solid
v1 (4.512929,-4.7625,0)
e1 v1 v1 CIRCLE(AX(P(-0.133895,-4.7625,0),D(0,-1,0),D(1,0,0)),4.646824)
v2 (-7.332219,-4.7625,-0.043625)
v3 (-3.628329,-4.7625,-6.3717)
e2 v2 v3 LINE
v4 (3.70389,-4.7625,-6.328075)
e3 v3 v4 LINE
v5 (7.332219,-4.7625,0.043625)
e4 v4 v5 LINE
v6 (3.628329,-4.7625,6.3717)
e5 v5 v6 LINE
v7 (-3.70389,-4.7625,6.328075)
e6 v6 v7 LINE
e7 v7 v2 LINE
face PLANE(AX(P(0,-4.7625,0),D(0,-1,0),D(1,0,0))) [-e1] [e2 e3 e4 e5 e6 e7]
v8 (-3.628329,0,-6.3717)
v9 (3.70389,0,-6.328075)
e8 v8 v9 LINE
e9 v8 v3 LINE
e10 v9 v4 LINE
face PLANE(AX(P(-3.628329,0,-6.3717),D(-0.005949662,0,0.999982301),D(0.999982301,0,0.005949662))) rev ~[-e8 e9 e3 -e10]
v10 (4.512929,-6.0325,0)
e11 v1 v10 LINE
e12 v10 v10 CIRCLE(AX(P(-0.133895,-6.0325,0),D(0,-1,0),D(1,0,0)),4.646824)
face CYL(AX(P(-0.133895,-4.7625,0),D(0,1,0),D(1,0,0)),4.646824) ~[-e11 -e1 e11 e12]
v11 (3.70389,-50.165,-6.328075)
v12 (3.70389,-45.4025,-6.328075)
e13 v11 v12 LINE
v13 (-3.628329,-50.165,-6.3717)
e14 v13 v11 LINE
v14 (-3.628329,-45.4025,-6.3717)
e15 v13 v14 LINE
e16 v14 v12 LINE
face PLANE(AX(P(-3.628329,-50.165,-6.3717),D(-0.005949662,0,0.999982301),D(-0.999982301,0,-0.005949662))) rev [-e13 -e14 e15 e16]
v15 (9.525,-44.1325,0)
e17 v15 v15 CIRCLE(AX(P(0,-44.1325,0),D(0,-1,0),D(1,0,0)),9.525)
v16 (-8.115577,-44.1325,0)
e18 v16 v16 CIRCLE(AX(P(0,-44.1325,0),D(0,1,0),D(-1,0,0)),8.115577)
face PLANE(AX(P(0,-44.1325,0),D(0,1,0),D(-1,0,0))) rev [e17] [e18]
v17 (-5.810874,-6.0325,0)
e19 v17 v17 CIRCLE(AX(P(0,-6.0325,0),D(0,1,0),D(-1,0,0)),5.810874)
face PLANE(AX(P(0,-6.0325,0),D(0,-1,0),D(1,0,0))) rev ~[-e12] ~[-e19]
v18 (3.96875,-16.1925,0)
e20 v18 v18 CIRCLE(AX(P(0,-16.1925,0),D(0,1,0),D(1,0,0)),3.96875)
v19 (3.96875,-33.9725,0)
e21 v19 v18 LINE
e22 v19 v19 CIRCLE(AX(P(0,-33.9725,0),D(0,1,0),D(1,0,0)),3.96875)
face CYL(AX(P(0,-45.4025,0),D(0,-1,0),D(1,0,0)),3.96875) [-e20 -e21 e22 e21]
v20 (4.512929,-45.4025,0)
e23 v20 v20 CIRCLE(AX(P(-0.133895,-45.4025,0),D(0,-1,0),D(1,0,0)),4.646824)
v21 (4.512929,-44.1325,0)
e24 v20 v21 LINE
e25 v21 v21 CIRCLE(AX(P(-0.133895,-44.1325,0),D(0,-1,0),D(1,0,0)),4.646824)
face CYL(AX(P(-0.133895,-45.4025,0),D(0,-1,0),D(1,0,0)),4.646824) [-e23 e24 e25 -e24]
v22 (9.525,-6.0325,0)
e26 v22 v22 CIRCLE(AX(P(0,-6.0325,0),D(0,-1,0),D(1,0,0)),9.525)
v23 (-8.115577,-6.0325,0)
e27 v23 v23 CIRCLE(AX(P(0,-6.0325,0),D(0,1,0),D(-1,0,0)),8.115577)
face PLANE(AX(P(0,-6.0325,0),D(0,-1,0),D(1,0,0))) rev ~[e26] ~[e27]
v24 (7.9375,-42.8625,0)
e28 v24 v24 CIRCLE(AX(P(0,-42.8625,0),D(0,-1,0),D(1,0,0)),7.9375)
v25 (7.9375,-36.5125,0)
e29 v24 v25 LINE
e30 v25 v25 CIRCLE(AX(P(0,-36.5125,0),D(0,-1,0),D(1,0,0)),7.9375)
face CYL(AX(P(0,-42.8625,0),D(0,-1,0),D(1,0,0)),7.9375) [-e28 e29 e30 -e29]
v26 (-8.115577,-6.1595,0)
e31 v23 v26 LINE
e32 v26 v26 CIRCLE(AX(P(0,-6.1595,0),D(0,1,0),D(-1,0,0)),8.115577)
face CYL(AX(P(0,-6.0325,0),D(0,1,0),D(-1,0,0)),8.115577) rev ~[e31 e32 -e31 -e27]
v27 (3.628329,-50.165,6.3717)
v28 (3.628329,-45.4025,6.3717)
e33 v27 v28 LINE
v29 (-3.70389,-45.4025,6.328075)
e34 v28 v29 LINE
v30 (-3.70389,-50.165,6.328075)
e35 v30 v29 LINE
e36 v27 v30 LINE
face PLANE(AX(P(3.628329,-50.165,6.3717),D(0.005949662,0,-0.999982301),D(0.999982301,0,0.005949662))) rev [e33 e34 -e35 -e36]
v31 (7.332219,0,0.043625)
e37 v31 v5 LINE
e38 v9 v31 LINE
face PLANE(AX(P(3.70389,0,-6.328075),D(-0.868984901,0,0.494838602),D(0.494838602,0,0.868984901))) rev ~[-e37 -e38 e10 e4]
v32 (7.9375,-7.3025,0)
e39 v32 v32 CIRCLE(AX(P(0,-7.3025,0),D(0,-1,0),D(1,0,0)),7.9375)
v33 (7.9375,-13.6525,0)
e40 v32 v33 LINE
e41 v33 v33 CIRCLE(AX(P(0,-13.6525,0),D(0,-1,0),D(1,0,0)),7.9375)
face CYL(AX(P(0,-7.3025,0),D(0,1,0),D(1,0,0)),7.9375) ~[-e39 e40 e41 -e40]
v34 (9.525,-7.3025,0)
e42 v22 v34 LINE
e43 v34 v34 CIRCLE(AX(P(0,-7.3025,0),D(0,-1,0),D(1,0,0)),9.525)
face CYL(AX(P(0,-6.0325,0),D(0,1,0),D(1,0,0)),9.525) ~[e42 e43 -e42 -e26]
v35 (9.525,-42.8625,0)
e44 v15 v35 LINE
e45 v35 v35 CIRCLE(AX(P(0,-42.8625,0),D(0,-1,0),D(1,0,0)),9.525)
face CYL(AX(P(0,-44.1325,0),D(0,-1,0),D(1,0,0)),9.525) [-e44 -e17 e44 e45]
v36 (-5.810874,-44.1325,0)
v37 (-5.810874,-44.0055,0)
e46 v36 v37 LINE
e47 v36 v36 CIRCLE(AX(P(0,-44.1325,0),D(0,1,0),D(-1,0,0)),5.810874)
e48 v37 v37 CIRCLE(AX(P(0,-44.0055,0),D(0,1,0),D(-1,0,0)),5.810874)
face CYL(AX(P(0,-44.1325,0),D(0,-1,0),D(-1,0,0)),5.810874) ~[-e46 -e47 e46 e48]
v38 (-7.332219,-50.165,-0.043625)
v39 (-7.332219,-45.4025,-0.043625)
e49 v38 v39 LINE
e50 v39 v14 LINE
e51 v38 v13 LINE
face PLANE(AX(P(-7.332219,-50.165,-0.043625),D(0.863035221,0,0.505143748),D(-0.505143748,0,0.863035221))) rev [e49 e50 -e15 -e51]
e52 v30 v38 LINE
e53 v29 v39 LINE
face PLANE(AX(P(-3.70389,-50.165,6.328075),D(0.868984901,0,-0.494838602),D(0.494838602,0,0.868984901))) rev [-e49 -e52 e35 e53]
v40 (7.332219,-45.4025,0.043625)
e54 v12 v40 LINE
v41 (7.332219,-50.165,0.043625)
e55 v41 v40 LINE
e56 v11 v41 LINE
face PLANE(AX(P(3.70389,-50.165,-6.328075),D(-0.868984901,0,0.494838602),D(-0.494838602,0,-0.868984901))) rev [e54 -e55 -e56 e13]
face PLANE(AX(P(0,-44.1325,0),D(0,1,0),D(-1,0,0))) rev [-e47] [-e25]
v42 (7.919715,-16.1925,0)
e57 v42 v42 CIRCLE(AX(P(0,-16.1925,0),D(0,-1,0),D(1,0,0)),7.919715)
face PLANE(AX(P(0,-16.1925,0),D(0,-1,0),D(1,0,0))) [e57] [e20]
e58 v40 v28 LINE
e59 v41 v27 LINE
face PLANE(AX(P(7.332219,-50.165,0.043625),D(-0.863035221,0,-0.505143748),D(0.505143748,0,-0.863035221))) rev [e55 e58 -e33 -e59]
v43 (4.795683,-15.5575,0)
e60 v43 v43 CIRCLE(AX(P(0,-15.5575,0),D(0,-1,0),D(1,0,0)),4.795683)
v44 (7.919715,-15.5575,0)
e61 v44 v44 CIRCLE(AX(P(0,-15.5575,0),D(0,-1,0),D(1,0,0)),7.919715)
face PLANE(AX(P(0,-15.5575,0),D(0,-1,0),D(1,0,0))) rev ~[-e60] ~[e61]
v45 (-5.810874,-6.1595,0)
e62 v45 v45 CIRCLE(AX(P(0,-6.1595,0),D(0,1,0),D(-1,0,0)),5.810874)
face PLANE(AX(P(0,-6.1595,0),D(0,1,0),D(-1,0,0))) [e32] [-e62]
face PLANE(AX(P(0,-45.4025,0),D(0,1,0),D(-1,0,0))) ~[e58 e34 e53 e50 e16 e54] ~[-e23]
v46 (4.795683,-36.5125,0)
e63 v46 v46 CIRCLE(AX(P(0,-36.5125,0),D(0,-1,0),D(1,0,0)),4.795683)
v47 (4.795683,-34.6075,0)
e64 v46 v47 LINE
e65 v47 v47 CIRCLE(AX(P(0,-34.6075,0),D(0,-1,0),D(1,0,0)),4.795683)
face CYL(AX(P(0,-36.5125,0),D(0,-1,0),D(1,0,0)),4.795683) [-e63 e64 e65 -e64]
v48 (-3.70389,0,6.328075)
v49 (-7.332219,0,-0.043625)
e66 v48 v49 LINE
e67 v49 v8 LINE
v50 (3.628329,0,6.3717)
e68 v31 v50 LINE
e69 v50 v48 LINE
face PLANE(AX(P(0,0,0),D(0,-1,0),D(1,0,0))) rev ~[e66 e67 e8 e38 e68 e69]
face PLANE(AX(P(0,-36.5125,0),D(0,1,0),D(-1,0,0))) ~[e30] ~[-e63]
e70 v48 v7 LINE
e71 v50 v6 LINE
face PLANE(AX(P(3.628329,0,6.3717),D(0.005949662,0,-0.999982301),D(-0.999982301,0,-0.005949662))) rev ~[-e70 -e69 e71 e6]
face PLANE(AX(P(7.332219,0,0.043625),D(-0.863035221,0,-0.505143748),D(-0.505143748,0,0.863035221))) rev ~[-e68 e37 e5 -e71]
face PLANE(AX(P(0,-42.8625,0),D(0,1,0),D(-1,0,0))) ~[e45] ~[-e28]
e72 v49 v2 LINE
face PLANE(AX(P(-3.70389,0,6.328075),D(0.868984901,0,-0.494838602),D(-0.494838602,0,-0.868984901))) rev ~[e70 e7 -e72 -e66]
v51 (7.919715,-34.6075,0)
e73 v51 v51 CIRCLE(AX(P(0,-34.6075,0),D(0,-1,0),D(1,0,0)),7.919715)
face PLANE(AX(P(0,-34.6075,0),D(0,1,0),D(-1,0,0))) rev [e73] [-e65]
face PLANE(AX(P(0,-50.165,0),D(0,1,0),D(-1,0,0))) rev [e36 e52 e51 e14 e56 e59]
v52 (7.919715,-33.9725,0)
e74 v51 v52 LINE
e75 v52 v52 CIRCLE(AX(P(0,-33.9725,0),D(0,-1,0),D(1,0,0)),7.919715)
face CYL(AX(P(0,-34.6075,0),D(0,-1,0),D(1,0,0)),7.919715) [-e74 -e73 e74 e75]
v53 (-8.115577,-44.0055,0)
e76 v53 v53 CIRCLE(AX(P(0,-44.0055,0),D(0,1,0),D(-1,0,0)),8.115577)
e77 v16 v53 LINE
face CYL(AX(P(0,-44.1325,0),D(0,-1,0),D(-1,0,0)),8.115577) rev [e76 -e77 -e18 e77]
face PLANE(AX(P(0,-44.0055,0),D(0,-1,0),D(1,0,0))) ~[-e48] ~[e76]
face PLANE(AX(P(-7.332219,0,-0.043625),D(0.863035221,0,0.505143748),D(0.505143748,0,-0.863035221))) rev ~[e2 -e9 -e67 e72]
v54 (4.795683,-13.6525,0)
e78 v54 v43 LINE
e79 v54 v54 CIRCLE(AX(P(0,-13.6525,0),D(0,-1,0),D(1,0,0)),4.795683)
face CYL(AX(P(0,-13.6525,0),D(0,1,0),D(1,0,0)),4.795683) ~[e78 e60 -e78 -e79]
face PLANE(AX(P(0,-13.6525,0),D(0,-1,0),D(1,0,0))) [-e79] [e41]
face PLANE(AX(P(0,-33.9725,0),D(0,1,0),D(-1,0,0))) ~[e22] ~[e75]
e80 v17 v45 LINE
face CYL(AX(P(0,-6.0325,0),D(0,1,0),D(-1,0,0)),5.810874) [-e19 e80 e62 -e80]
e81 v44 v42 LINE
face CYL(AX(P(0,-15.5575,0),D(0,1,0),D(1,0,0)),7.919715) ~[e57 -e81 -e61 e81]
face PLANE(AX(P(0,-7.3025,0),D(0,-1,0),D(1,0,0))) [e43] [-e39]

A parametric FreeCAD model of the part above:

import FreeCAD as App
import Part
import Sketcher
from FreeCAD import Vector
Q = App.Units.Quantity


def add_polygon(sketch, points):
    """Adds a closed chain of lines whose ends are joined by coincident constraints."""
    first, n = sketch.GeometryCount, len(points)
    for a, b in zip(points, points[1:] + points[:1]):
        sketch.addGeometry(Part.LineSegment(App.Vector(*a, 0), App.Vector(*b, 0)), False)
    for i in range(n):
        sketch.addConstraint(Sketcher.Constraint("Coincident", first + i, 2, first + (i + 1) % n, 1))

doc = App.newDocument("Part")
params = doc.addObject("Spreadsheet::Sheet", "Params")
for row, (alias, value) in enumerate([
    ("pad1_length", "0.1875 in"),
    ("sketch2_diameter", "0.3125 in"),
    ("pad2_length", "0.8 in"),
    ("pad3_length", "0.05 in"),
    ("sketch4_diameter", "0.75 in"),
    ("pad4_length", "0.05 in"),
    ("pocket1_length", "0.005 in"),
    ("sketch6_diameter", "0.625 in"),
    ("pad5_length", "0.25 in"),
    ("pad6_length", "0.075 in"),
    ("pad7_length", "0.025 in"),
], start=1):
    params.set(f"A{row}", alias)
    params.set(f"B{row}", "=" + value)
    params.setAlias(f"B{row}", alias)

body = doc.addObject("PartDesign::Body", "Body")

sketch1 = body.newObject("Sketcher::SketchObject", "Sketch")
sketch1.AttachmentSupport = (doc.getObject("XZ_Plane"), [""])
sketch1.MapMode = "FlatFace"
add_polygon(sketch1, [(-3.70389, 6.328075), (-7.332219, -0.043625), (-3.628329, -6.3717), (3.70389, -6.328075), (7.332219, 0.043625), (3.628329, 6.3717)])
sketch1.addConstraint([
    Sketcher.Constraint("Symmetric", 0, 2, 3, 2, -1, 1),
    Sketcher.Constraint("Symmetric", 1, 2, 4, 2, -1, 1),
    Sketcher.Constraint("Symmetric", 2, 2, 5, 2, -1, 1),
    Sketcher.Constraint("Equal", 0, 1),
    Sketcher.Constraint("Equal", 1, 2),
    Sketcher.Constraint("DistanceY", 1, 2, -1, 1, Q("6.3717 mm")),
    Sketcher.Constraint("DistanceY", 2, 2, 3, 2, Q("6.3717 mm")),
    Sketcher.Constraint("Distance", 0, Q("7.332348 mm")),
    Sketcher.Constraint("DistanceX", 0, 2, -1, 1, Q("7.332219 mm")),
])
pad1 = body.newObject("PartDesign::Pad", "Pad")
pad1.Profile = sketch1
pad1.setExpression("Length", "Params.pad1_length")

sketch2 = body.newObject("Sketcher::SketchObject", "Sketch001")
sketch2.AttachmentSupport = (doc.getObject("XZ_Plane"), [""])
sketch2.MapMode = "FlatFace"
sketch2.AttachmentOffset = App.Placement(Vector(0, 0, 0.1875 * 25.4), App.Rotation())
sketch2.addGeometry(Part.Circle(Vector(0, 0, 0), Vector(0, 0, 1), 3.96875), False)
sketch2.addConstraint([
    Sketcher.Constraint("Coincident", 0, 3, -1, 1),
    Sketcher.Constraint("Diameter", 0, Q("0.3125 in")),
])
sketch2.setExpression("Constraints[1]", "Params.sketch2_diameter")
pad2 = body.newObject("PartDesign::Pad", "Pad001")
pad2.Profile = sketch2
pad2.setExpression("Length", "Params.pad2_length")

sketch3 = body.newObject("Sketcher::SketchObject", "Sketch002")
sketch3.AttachmentSupport = (doc.getObject("XZ_Plane"), [""])
sketch3.MapMode = "FlatFace"
sketch3.AttachmentOffset = App.Placement(Vector(0, 0, 0.1875 * 25.4), App.Rotation())
sketch3.addGeometry(Part.Circle(Vector(-0.133895, 0, 0), Vector(0, 0, 1), 4.646824), False)
sketch3.addConstraint([
    Sketcher.Constraint("PointOnObject", 0, 3, -1),
    Sketcher.Constraint("Diameter", 0, Q("9.293648 mm")),
    Sketcher.Constraint("DistanceX", 0, 3, -1, 1, Q("0.133895 mm")),
])
pad3 = body.newObject("PartDesign::Pad", "Pad002")
pad3.Profile = sketch3
pad3.setExpression("Length", "Params.pad3_length")

sketch4 = body.newObject("Sketcher::SketchObject", "Sketch003")
sketch4.AttachmentSupport = (doc.getObject("XZ_Plane"), [""])
sketch4.MapMode = "FlatFace"
sketch4.AttachmentOffset = App.Placement(Vector(0, 0, 0.2375 * 25.4), App.Rotation())
sketch4.addGeometry(Part.Circle(Vector(0, 0, 0), Vector(0, 0, 1), 9.525), False)
sketch4.addConstraint([
    Sketcher.Constraint("Coincident", 0, 3, -1, 1),
    Sketcher.Constraint("Diameter", 0, Q("0.75 in")),
])
sketch4.setExpression("Constraints[1]", "Params.sketch4_diameter")
pad4 = body.newObject("PartDesign::Pad", "Pad003")
pad4.Profile = sketch4
pad4.setExpression("Length", "Params.pad4_length")

sketch5 = body.newObject("Sketcher::SketchObject", "Sketch004")
sketch5.AttachmentSupport = (doc.getObject("XZ_Plane"), [""])
sketch5.MapMode = "FlatFace"
sketch5.AttachmentOffset = App.Placement(Vector(0, 0, 0.2375 * 25.4), App.Rotation())
sketch5.addGeometry([
    Part.Circle(Vector(0, 0, 0), Vector(0, 0, 1), 8.115577),
    Part.Circle(Vector(0, 0, 0), Vector(0, 0, 1), 5.810874),
], False)
sketch5.addConstraint([
    Sketcher.Constraint("Coincident", 0, 3, -1, 1),
    Sketcher.Constraint("Coincident", 1, 3, -1, 1),
    Sketcher.Constraint("Diameter", 0, Q("16.231154 mm")),
    Sketcher.Constraint("Diameter", 1, Q("11.621748 mm")),
])
pocket1 = body.newObject("PartDesign::Pocket", "Pocket")
pocket1.Profile = sketch5
pocket1.setExpression("Length", "Params.pocket1_length")
pocket1.Reversed = True

sketch6 = body.newObject("Sketcher::SketchObject", "Sketch005")
sketch6.AttachmentSupport = (doc.getObject("XZ_Plane"), [""])
sketch6.MapMode = "FlatFace"
sketch6.AttachmentOffset = App.Placement(Vector(0, 0, 0.2875 * 25.4), App.Rotation())
sketch6.addGeometry(Part.Circle(Vector(0, 0, 0), Vector(0, 0, 1), 7.9375), False)
sketch6.addConstraint([
    Sketcher.Constraint("Coincident", 0, 3, -1, 1),
    Sketcher.Constraint("Diameter", 0, Q("0.625 in")),
])
sketch6.setExpression("Constraints[1]", "Params.sketch6_diameter")
pad5 = body.newObject("PartDesign::Pad", "Pad004")
pad5.Profile = sketch6
pad5.setExpression("Length", "Params.pad5_length")

sketch7 = body.newObject("Sketcher::SketchObject", "Sketch006")
sketch7.AttachmentSupport = (doc.getObject("XZ_Plane"), [""])
sketch7.MapMode = "FlatFace"
sketch7.AttachmentOffset = App.Placement(Vector(0, 0, 0.5375 * 25.4), App.Rotation())
sketch7.addGeometry(Part.Circle(Vector(0, 0, 0), Vector(0, 0, 1), 4.795683), False)
sketch7.addConstraint([
    Sketcher.Constraint("Coincident", 0, 3, -1, 1),
    Sketcher.Constraint("Diameter", 0, Q("9.591366 mm")),
])
pad6 = body.newObject("PartDesign::Pad", "Pad005")
pad6.Profile = sketch7
pad6.setExpression("Length", "Params.pad6_length")

sketch8 = body.newObject("Sketcher::SketchObject", "Sketch007")
sketch8.AttachmentSupport = (doc.getObject("XZ_Plane"), [""])
sketch8.MapMode = "FlatFace"
sketch8.AttachmentOffset = App.Placement(Vector(0, 0, 0.6125 * 25.4), App.Rotation())
sketch8.addGeometry(Part.Circle(Vector(0, 0, 0), Vector(0, 0, 1), 7.919715), False)
sketch8.addConstraint([
    Sketcher.Constraint("Coincident", 0, 3, -1, 1),
    Sketcher.Constraint("Diameter", 0, Q("15.83943 mm")),
])
pad7 = body.newObject("PartDesign::Pad", "Pad006")
pad7.Profile = sketch8
pad7.setExpression("Length", "Params.pad7_length")
body2 = doc.addObject("PartDesign::Body", "Body001")
doc.recompute()

body2.BaseFeature = body
doc.recompute()

mirroring = doc.addObject("Part::Mirroring", "Mirroring")
mirroring.Source = body
mirroring.Base = Vector(0, -25.0825, 0)
mirroring.Normal = Vector(0, -1, 0)
body3 = doc.addObject("PartDesign::Body", "Body002")
body3.BaseFeature = mirroring
boolean = body2.newObject("PartDesign::Boolean", "Boolean")
boolean.Type = "Fuse"
boolean.addObjects([body3])
doc.recompute()
mirroring.Visibility = False

doc.recompute()
